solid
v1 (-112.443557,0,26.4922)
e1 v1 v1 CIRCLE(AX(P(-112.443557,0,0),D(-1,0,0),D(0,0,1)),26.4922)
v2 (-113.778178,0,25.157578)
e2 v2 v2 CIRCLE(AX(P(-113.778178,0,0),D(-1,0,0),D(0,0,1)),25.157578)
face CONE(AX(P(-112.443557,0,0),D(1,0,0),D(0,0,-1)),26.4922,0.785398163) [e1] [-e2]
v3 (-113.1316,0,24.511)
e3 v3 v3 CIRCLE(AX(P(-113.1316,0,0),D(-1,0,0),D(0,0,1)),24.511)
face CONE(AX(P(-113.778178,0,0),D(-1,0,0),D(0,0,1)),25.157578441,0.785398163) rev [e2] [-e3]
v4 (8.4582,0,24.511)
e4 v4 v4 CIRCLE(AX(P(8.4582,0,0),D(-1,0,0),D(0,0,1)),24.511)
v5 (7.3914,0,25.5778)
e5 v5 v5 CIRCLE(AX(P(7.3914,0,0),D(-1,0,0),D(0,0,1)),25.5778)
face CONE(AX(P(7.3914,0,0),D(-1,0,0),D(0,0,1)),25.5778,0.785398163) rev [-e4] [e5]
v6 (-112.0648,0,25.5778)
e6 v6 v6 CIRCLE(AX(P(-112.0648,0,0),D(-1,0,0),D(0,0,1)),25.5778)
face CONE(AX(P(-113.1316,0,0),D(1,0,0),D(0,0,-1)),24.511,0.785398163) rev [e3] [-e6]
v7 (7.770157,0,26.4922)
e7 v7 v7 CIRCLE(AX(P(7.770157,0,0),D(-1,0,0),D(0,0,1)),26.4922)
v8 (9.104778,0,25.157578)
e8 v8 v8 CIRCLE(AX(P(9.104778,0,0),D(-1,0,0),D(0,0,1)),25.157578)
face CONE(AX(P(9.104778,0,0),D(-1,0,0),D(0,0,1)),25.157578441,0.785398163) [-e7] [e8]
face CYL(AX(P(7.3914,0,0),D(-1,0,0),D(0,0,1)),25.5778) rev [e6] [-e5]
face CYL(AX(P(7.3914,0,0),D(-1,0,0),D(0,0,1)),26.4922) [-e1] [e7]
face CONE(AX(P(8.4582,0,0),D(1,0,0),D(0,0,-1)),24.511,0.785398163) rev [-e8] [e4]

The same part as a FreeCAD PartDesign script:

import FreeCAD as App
import Part
import Sketcher
from FreeCAD import Vector
Q = App.Units.Quantity


def add_polygon(sketch, points):
    """Adds a closed chain of lines whose ends are joined by coincident constraints."""
    first, n = sketch.GeometryCount, len(points)
    for a, b in zip(points, points[1:] + points[:1]):
        sketch.addGeometry(Part.LineSegment(App.Vector(*a, 0), App.Vector(*b, 0)), False)
    for i in range(n):
        sketch.addConstraint(Sketcher.Constraint("Coincident", first + i, 2, first + (i + 1) % n, 1))

doc = App.newDocument("Part")
params = doc.addObject("Spreadsheet::Sheet", "Params")
for row, (alias, value) in enumerate([
    ("sketch1_width", "4.703 in"),
    ("sketch1_length", "0.036 in"),
    ("revolution_angle", "360 deg"),
], start=1):
    params.set(f"A{row}", alias)
    params.set(f"B{row}", "=" + value)
    params.setAlias(f"B{row}", alias)

body = doc.addObject("PartDesign::Body", "Body")

sketch1 = body.newObject("Sketcher::SketchObject", "Sketch")
sketch1.AttachmentSupport = (doc.getObject("XY_Plane"), [""])
sketch1.MapMode = "FlatFace"
add_polygon(sketch1, [(-113.8, 25.2), (-113.1, 24.5), (-112.1, 25.6), (7.4, 25.6), (8.5, 24.5), (9.1, 25.2), (7.8, 26.5), (-112.4, 26.5)])
sketch1.addConstraint(Sketcher.Constraint("Horizontal", 2))
sketch1.addConstraint(Sketcher.Constraint("Horizontal", 6))
sketch1.addConstraint(Sketcher.Constraint("Perpendicular", 0, 1))
sketch1.addConstraint(Sketcher.Constraint("Perpendicular", 1, 3))
sketch1.addConstraint(Sketcher.Constraint("Perpendicular", 3, 4))
sketch1.addConstraint(Sketcher.Constraint("Perpendicular", 4, 5))
sketch1.addConstraint(Sketcher.Constraint("Perpendicular", 5, 7))
sketch1.addConstraint(Sketcher.Constraint("Horizontal", 0, 2, 3, 2))
sketch1.addConstraint(Sketcher.Constraint("Horizontal", 4, 2, 7, 2))
sketch1.addConstraint(Sketcher.Constraint("Equal", 1, 3))
sketch1.addConstraint(Sketcher.Constraint("DistanceX", 2, 1, 2, 2, Q("4.703 in")))
sketch1.addConstraint(Sketcher.Constraint("Distance", 0, Q("0.036 in")))
sketch1.addConstraint(Sketcher.Constraint("DistanceX", 0, 2, -1, 1, Q("4.454 in")))
sketch1.addConstraint(Sketcher.Constraint("DistanceY", -1, 1, 0, 2, Q("0.965 in")))
sketch1.addConstraint(Sketcher.Constraint("DistanceX", 1, 2, -1, 1, Q("4.412 in")))
sketch1.addConstraint(Sketcher.Constraint("DistanceY", -1, 1, 5, 2, Q("1.043 in")))
sketch1.setExpression("Constraints[18]", "Params.sketch1_width")
sketch1.setExpression("Constraints[19]", "Params.sketch1_length")
revolution = body.newObject("PartDesign::Revolution", "Revolution")
revolution.Profile = sketch1
revolution.ReferenceAxis = (sketch1, ["H_Axis"])
revolution.setExpression("Angle", "Params.revolution_angle")

doc.recompute()
